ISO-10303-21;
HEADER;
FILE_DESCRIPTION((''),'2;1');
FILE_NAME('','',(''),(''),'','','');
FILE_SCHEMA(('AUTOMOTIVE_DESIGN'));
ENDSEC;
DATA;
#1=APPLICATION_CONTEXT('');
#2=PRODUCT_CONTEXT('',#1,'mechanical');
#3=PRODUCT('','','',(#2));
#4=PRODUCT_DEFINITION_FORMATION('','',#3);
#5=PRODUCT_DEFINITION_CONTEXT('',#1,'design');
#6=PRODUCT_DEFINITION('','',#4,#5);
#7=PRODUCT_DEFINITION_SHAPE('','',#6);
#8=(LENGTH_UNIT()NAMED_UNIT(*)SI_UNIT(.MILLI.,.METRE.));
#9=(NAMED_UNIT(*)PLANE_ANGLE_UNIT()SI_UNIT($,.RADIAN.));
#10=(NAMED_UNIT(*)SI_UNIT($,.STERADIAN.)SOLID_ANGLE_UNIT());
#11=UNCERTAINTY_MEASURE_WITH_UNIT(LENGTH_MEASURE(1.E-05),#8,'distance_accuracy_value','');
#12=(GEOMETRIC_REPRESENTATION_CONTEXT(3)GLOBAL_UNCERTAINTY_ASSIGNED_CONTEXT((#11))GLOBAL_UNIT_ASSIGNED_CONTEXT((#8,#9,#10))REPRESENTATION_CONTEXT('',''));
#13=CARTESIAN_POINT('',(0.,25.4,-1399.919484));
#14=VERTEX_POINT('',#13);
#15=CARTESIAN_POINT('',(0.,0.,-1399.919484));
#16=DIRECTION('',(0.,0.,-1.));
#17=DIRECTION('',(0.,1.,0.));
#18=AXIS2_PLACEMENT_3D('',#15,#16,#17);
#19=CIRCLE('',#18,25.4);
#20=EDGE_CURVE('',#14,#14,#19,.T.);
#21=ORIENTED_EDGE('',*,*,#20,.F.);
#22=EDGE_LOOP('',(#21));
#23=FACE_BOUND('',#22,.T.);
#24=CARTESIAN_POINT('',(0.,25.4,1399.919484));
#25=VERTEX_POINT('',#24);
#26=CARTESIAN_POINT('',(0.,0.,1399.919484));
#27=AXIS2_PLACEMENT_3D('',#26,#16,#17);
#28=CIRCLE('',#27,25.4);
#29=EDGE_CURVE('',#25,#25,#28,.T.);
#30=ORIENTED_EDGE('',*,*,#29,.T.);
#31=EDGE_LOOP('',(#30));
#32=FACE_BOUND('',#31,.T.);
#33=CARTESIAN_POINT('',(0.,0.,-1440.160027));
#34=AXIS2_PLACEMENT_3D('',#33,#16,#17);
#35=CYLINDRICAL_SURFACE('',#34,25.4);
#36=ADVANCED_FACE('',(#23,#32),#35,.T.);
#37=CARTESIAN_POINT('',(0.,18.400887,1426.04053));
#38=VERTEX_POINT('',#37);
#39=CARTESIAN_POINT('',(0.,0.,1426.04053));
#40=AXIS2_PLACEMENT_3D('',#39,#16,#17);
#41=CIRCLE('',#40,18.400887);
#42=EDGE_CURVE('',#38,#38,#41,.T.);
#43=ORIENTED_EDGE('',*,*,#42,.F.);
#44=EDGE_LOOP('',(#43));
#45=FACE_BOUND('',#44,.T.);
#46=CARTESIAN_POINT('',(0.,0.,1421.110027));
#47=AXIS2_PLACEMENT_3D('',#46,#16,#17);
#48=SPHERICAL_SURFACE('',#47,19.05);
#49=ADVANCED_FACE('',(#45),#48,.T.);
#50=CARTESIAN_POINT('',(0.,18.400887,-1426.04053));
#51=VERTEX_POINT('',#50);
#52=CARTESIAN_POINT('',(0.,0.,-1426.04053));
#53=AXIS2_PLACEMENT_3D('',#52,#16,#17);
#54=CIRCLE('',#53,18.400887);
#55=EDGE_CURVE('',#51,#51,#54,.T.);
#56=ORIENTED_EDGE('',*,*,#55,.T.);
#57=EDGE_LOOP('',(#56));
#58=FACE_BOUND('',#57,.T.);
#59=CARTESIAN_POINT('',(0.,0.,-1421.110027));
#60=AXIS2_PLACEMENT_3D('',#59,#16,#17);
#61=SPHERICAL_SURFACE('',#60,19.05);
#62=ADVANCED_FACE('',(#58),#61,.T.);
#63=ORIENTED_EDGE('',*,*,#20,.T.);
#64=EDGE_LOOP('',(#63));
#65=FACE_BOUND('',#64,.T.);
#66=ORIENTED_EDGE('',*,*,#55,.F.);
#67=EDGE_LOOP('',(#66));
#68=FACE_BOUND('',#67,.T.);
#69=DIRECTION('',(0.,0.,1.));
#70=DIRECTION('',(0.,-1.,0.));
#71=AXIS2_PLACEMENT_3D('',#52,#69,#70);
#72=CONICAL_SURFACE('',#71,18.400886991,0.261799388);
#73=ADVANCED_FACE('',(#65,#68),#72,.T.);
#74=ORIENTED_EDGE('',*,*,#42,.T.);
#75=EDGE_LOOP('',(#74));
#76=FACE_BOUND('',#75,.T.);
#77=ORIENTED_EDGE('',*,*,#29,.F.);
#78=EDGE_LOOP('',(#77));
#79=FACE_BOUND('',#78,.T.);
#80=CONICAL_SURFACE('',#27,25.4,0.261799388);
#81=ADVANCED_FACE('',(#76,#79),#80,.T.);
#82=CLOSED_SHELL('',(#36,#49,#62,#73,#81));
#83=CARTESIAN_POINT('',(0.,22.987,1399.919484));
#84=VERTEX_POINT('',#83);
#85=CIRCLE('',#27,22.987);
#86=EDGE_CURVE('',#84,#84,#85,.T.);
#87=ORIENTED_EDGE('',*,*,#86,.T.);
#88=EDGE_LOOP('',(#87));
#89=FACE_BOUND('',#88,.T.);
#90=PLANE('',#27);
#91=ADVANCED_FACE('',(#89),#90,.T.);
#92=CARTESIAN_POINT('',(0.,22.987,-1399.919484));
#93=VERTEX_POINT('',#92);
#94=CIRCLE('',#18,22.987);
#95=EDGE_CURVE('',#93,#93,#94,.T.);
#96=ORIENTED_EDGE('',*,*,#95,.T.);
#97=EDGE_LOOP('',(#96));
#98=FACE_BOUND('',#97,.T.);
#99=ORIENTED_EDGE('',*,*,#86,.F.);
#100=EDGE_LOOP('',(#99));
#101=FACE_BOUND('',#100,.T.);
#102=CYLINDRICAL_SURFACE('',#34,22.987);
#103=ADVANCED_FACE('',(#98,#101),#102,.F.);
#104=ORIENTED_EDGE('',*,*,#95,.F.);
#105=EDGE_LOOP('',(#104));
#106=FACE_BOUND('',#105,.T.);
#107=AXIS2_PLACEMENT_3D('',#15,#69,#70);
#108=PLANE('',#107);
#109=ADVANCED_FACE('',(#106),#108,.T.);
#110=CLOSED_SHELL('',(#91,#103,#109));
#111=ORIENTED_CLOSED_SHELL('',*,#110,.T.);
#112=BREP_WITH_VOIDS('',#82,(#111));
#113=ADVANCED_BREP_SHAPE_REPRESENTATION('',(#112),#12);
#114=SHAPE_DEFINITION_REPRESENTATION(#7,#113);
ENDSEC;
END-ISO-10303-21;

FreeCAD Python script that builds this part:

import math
import FreeCAD as App
import Part
import Sketcher
Q = App.Units.Quantity

doc = App.newDocument("Part")
body = doc.addObject("PartDesign::Body", "Body")

sketch1 = doc.addObject("Sketcher::SketchObject", "Sketch")
body.addObject(sketch1)
sketch1.AttachmentSupport = (doc.YZ_Plane, [""])
sketch1.MapMode = "FlatFace"
sketch1.addGeometry(Part.LineSegment(App.Vector(18, -1426, 0), App.Vector(25, -1400, 0)), False)
sketch1.addGeometry(Part.LineSegment(App.Vector(25, -1400, 0), App.Vector(25, 1400, 0)), False)
sketch1.addGeometry(Part.LineSegment(App.Vector(25, 1400, 0), App.Vector(18, 1426, 0)), False)
sketch1.addGeometry(Part.ArcOfCircle(Part.Circle(App.Vector(0, 1421, 0), App.Vector(0, 0, 1), 19), math.radians(15), math.radians(90)), False)
sketch1.addGeometry(Part.LineSegment(App.Vector(0, 1440, 0), App.Vector(0, 1400, 0)), False)
sketch1.addGeometry(Part.LineSegment(App.Vector(0, 1400, 0), App.Vector(23, 1400, 0)), False)
sketch1.addGeometry(Part.LineSegment(App.Vector(23, 1400, 0), App.Vector(23, -1400, 0)), False)
sketch1.addGeometry(Part.LineSegment(App.Vector(23, -1400, 0), App.Vector(0, -1400, 0)), False)
sketch1.addGeometry(Part.LineSegment(App.Vector(0, -1400, 0), App.Vector(0, -1440, 0)), False)
sketch1.addGeometry(Part.ArcOfCircle(Part.Circle(App.Vector(0, -1421, 0), App.Vector(0, 0, 1), 19), math.radians(-90), math.radians(-15)), False)
sketch1.addConstraint(Sketcher.Constraint("Coincident", 0, 2, 1, 1))
sketch1.addConstraint(Sketcher.Constraint("Coincident", 1, 2, 2, 1))
sketch1.addConstraint(Sketcher.Constraint("Tangent", 2, 2, 3, 1))
sketch1.addConstraint(Sketcher.Constraint("Coincident", 3, 2, 4, 1))
sketch1.addConstraint(Sketcher.Constraint("Coincident", 4, 2, 5, 1))
sketch1.addConstraint(Sketcher.Constraint("Coincident", 5, 2, 6, 1))
sketch1.addConstraint(Sketcher.Constraint("Coincident", 6, 2, 7, 1))
sketch1.addConstraint(Sketcher.Constraint("Coincident", 7, 2, 8, 1))
sketch1.addConstraint(Sketcher.Constraint("Coincident", 8, 2, 9, 1))
sketch1.addConstraint(Sketcher.Constraint("Tangent", 9, 2, 0, 1))
sketch1.addConstraint(Sketcher.Constraint("Vertical", 1))
sketch1.addConstraint(Sketcher.Constraint("Vertical", 4))
sketch1.addConstraint(Sketcher.Constraint("Horizontal", 5))
sketch1.addConstraint(Sketcher.Constraint("Vertical", 6))
sketch1.addConstraint(Sketcher.Constraint("Horizontal", 7))
sketch1.addConstraint(Sketcher.Constraint("Vertical", 8))
sketch1.addConstraint(Sketcher.Constraint("Equal", 3, 9))
sketch1.addConstraint(Sketcher.Constraint("Symmetric", 3, 3, 9, 3, -1, 1))
sketch1.addConstraint(Sketcher.Constraint("Symmetric", 4, 2, 7, 2, -1, 1))
sketch1.addConstraint(Sketcher.Constraint("Symmetric", 2, 2, 9, 2, -1))
sketch1.addConstraint(Sketcher.Constraint("PointOnObject", 3, 2, -2))
sketch1.addConstraint(Sketcher.Constraint("Horizontal", 1, 2, 4, 2))
sketch1.addConstraint(Sketcher.Constraint("Radius", 3, Q("0.75 in")))
sketch1.addConstraint(Sketcher.Constraint("DistanceX", -1, 1, 0, 2, Q("1 in")))
sketch1.addConstraint(Sketcher.Constraint("Angle", 0, Q("75 deg")))
sketch1.addConstraint(Sketcher.Constraint("DistanceX", 5, 1, 5, 2, Q("0.905 in")))
sketch1.addConstraint(Sketcher.Constraint("DistanceY", 1, 1, 1, 2, Q("2799.838969 mm")))
revolution = doc.addObject("PartDesign::Revolution", "Revolution")
body.addObject(revolution)
revolution.Profile = sketch1
revolution.ReferenceAxis = (sketch1, ["V_Axis"])
revolution.Angle = 360

doc.recompute()
